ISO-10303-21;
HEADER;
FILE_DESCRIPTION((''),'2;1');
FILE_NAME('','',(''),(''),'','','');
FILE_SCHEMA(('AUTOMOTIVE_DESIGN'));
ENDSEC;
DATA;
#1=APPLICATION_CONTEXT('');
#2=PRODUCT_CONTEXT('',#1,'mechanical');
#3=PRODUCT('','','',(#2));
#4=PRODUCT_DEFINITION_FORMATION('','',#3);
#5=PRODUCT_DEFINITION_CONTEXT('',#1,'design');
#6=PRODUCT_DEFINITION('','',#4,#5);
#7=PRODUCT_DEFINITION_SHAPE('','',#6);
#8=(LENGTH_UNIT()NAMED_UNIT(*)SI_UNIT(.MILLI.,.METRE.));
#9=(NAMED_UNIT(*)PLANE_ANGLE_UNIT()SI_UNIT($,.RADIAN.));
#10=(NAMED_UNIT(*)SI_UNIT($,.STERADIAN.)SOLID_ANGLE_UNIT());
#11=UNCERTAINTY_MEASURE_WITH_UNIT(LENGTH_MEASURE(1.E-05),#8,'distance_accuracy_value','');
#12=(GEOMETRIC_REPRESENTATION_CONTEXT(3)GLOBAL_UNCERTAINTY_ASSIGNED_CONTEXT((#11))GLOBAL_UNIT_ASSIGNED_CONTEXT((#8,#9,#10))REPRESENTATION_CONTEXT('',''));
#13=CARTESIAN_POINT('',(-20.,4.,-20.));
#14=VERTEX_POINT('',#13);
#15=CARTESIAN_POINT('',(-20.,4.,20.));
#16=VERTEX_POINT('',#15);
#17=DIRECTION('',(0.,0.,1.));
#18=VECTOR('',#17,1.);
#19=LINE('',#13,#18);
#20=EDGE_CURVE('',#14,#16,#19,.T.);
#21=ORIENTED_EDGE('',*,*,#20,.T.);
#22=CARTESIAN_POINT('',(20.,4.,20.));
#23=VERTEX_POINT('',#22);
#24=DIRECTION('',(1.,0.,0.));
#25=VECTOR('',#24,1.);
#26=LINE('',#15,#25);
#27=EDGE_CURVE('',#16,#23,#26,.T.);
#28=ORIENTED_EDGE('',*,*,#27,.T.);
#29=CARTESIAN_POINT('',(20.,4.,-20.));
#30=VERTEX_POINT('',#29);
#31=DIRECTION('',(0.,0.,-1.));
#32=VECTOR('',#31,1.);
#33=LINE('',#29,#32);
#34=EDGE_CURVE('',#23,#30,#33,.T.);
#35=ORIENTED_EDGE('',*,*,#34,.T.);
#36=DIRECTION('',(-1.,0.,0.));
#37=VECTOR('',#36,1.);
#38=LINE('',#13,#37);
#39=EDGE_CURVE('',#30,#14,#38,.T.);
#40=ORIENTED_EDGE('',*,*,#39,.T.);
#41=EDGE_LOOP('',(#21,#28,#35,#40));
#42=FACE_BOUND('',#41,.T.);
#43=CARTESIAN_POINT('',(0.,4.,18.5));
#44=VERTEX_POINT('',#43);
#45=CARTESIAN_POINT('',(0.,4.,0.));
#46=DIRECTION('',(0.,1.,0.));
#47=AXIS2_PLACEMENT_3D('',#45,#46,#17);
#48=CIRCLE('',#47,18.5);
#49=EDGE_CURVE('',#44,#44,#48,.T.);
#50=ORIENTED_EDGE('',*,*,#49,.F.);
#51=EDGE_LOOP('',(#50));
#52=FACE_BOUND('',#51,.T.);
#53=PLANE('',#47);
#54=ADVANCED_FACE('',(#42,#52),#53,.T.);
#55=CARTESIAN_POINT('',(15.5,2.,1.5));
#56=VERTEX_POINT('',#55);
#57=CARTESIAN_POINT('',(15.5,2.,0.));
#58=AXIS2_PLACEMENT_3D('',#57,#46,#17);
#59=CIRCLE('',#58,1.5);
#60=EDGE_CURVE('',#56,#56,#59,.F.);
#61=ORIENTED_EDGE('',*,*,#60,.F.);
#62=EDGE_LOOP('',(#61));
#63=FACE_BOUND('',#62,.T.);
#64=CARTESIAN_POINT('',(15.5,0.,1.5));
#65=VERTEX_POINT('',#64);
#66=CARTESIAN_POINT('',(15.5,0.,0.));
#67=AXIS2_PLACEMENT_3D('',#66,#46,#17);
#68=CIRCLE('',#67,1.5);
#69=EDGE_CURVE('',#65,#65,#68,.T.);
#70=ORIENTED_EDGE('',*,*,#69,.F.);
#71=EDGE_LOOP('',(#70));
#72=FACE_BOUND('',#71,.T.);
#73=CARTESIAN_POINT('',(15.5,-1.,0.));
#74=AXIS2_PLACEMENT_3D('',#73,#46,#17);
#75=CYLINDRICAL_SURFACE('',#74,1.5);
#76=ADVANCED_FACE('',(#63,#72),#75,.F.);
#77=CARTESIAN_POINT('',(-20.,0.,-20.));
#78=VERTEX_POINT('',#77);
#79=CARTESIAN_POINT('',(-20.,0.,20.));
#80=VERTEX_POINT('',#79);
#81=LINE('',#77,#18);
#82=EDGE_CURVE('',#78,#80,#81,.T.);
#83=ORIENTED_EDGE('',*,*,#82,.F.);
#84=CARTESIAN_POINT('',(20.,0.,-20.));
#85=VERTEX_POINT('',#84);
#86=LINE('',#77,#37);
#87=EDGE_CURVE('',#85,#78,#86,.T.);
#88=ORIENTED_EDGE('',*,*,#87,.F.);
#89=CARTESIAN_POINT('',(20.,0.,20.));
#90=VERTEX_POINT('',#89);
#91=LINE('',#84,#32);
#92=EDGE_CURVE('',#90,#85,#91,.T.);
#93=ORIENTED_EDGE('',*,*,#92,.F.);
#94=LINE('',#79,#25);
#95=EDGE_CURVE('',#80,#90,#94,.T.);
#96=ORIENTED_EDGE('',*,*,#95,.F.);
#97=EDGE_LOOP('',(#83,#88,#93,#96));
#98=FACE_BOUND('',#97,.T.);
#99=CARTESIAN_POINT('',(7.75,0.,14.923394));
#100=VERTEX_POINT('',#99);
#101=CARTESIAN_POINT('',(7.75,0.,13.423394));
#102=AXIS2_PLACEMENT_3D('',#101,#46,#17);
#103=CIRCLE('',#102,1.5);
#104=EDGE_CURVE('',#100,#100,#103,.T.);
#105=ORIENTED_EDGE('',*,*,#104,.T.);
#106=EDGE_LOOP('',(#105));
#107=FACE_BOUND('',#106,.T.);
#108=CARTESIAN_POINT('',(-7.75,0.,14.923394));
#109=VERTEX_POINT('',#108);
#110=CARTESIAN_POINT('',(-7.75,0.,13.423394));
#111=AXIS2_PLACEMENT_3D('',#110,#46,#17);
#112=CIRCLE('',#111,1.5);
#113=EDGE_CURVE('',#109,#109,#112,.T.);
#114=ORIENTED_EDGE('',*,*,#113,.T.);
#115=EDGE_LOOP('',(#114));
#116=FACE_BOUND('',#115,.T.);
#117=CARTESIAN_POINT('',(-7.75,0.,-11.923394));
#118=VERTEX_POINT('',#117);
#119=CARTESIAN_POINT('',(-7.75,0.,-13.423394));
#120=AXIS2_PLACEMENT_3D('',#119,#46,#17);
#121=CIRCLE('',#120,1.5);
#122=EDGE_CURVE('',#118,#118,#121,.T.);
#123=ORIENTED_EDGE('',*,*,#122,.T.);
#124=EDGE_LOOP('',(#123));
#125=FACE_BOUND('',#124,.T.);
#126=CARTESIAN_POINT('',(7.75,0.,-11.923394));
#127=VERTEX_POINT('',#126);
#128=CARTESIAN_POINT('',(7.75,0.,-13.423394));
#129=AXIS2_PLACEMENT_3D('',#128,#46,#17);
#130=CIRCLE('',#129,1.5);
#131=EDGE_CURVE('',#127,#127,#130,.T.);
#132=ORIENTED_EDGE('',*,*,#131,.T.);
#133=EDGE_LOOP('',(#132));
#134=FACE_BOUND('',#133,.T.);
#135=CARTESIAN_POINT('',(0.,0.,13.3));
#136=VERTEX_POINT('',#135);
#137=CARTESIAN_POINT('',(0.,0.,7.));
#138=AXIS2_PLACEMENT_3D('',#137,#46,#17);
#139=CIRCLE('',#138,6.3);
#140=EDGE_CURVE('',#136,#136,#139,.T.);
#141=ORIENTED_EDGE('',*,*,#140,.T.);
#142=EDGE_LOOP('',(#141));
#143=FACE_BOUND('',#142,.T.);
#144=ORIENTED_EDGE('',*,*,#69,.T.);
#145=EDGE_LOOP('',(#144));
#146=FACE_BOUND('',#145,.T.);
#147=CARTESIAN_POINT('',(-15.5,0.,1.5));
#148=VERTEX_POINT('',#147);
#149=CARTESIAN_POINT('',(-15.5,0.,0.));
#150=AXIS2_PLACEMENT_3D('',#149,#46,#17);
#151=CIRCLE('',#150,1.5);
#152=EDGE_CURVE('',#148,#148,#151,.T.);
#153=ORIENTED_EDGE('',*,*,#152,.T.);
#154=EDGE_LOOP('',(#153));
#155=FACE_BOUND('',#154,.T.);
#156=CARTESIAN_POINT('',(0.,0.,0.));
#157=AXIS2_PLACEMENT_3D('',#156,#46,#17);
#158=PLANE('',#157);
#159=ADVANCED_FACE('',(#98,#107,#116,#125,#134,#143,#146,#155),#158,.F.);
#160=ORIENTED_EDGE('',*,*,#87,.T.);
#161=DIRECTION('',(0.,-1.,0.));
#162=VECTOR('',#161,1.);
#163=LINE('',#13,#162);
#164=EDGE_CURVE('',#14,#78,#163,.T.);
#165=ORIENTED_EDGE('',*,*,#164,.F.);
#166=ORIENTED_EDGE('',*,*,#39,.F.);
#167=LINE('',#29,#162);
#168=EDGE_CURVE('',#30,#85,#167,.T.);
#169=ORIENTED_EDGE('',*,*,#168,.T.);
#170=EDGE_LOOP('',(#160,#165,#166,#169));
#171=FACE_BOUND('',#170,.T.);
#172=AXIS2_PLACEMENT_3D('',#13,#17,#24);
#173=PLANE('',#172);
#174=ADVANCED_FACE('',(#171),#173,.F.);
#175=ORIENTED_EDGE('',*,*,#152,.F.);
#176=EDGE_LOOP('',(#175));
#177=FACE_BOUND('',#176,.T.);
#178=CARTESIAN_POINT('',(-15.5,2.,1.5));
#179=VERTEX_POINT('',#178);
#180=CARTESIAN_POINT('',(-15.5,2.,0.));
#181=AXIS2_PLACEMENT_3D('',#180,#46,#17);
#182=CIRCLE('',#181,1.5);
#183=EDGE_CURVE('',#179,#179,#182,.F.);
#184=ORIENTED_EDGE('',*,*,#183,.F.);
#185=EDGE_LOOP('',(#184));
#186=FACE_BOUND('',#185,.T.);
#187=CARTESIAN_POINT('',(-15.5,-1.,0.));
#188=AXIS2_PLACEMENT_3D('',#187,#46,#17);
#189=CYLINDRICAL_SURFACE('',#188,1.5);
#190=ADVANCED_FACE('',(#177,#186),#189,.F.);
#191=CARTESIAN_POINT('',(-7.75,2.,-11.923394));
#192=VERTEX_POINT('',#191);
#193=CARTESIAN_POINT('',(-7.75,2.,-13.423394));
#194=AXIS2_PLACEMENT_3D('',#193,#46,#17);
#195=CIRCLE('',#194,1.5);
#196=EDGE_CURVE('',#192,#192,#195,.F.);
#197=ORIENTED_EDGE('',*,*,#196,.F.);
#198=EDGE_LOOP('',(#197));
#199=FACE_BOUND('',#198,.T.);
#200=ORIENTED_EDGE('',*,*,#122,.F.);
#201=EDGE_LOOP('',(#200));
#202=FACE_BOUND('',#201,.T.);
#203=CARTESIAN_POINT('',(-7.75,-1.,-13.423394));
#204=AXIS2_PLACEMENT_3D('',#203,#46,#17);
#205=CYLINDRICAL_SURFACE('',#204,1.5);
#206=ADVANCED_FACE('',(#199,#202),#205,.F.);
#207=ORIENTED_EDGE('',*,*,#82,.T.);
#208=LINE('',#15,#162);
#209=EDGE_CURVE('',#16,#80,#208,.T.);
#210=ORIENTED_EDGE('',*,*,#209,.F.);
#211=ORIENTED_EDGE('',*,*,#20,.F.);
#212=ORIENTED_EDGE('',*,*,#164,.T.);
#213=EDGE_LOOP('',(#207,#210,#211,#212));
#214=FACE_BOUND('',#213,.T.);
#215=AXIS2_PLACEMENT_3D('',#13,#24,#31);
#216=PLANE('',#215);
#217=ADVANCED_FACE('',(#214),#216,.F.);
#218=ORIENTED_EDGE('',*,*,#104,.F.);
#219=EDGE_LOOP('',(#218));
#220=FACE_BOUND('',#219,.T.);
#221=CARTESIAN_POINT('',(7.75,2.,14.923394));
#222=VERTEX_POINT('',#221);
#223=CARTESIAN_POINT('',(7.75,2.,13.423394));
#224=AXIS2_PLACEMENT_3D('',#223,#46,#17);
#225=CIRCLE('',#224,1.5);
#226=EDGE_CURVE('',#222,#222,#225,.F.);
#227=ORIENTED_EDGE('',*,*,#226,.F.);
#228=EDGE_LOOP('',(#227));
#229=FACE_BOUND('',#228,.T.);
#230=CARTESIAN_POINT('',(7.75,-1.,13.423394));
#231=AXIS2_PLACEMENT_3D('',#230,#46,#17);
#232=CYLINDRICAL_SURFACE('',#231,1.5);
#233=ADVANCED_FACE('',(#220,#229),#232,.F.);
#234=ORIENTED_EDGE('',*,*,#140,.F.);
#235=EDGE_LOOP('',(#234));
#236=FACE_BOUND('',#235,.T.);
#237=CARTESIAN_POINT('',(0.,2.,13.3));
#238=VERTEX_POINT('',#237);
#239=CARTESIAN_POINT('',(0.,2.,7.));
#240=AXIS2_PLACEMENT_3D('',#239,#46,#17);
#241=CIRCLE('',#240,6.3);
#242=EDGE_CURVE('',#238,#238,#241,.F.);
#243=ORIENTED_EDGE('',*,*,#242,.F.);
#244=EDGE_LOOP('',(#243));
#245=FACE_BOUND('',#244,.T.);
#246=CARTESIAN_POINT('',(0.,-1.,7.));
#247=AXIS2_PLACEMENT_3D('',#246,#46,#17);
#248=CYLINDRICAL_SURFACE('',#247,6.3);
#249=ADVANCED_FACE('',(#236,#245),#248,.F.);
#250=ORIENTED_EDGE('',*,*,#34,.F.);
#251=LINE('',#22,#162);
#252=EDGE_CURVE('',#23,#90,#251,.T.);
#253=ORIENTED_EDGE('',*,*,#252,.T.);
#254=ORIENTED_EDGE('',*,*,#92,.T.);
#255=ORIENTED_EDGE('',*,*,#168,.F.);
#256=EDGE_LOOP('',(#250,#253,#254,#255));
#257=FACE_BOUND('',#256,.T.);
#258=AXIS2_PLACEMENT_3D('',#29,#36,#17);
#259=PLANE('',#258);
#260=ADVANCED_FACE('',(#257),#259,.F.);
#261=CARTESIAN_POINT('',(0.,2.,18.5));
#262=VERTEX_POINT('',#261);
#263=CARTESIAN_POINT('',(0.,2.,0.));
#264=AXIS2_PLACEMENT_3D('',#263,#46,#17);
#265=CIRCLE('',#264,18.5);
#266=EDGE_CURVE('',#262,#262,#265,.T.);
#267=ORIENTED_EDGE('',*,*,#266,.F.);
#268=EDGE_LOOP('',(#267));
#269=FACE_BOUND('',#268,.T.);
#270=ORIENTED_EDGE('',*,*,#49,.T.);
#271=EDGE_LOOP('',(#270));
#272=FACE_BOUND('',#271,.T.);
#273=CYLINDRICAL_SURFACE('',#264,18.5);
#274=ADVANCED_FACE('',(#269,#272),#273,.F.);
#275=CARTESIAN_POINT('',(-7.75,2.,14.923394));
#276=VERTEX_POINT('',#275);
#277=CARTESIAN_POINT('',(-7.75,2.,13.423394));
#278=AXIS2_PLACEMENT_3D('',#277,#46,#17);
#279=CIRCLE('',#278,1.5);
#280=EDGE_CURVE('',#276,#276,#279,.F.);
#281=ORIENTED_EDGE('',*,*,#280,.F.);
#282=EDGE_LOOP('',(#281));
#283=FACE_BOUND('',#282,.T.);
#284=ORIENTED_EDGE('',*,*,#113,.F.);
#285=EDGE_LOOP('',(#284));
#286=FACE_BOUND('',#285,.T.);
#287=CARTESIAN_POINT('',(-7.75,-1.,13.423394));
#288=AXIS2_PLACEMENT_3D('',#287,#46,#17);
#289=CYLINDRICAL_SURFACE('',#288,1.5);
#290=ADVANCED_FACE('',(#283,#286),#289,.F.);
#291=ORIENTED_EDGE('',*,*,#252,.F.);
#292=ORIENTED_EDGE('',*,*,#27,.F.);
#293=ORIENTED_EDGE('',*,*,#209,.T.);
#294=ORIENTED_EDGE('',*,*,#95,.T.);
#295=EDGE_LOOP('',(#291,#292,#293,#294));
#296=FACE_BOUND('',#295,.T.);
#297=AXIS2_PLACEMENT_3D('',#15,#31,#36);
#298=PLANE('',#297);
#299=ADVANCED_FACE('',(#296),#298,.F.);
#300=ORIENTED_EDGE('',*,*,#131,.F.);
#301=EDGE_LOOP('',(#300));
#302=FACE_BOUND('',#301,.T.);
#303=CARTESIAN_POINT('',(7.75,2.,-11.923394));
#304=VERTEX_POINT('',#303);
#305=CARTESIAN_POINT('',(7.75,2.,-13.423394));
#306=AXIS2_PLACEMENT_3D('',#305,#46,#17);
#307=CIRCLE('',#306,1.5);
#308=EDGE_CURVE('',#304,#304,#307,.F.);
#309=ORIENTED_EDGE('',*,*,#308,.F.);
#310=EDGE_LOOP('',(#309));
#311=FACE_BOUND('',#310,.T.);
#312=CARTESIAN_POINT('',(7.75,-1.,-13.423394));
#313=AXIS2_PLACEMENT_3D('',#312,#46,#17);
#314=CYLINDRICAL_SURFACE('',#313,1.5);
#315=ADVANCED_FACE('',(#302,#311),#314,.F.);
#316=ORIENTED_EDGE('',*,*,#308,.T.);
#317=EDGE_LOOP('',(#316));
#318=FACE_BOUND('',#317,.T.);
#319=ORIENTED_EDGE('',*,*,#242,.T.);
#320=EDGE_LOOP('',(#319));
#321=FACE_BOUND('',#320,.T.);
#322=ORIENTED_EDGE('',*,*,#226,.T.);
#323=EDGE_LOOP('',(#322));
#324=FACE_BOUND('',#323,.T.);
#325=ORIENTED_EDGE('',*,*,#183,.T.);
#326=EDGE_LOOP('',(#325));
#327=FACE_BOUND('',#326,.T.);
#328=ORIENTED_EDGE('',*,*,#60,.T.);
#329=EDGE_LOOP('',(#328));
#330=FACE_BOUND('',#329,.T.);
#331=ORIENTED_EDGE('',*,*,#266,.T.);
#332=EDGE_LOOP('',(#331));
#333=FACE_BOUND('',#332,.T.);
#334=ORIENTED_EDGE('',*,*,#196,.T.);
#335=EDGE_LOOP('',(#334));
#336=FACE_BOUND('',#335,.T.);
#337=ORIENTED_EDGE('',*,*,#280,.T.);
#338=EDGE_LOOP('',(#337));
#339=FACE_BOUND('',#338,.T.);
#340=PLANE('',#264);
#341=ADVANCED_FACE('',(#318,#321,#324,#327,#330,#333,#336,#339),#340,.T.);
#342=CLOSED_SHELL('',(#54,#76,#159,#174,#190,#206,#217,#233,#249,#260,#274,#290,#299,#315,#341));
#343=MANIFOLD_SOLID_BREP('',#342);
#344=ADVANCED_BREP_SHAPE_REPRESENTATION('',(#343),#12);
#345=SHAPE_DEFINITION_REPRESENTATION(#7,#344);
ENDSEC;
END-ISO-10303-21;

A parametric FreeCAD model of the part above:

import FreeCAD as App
import Part
import Sketcher


def add_polygon(sketch, points):
    """Adds a closed chain of lines whose ends are joined by coincident constraints."""
    first, n = sketch.GeometryCount, len(points)
    for a, b in zip(points, points[1:] + points[:1]):
        sketch.addGeometry(Part.LineSegment(App.Vector(*a, 0), App.Vector(*b, 0)), False)
    for i in range(n):
        sketch.addConstraint(Sketcher.Constraint("Coincident", first + i, 2, first + (i + 1) % n, 1))

doc = App.newDocument("Part")
body = doc.addObject("PartDesign::Body", "Body")

# Sketch on XZ plane
sketch1 = doc.addObject("Sketcher::SketchObject", "Sketch")
body.addObject(sketch1)
sketch1.AttachmentSupport = (doc.XZ_Plane, [""])
sketch1.MapMode = "FlatFace"
add_polygon(sketch1, [(-20, -20), (-20, 20), (20, 20), (20, -20)])  # lines 0-3
sketch1.addConstraint([
    Sketcher.Constraint("Vertical", 0),
    Sketcher.Constraint("Horizontal", 1),
    Sketcher.Constraint("Vertical", 2),
    Sketcher.Constraint("Horizontal", 3),
    Sketcher.Constraint("Symmetric", 0, 2, 2, 2, -1, 1),
    Sketcher.Constraint("Equal", 3, 0),
    Sketcher.Constraint("DistanceX", 1, 1, 1, 2, 40.0),
])
pad1 = doc.addObject("PartDesign::Pad", "Pad")
body.addObject(pad1)
pad1.Profile = sketch1
pad1.Length = 4
pad1.Reversed = True

# Sketch on XZ plane
sketch2 = doc.addObject("Sketcher::SketchObject", "Sketch001")
body.addObject(sketch2)
sketch2.AttachmentSupport = (doc.XZ_Plane, [""])
sketch2.MapMode = "FlatFace"
sketch2.AttachmentOffset = App.Placement(App.Vector(0, 0, -4), App.Rotation())
sketch2.addGeometry([
    Part.Circle(App.Vector(0, 7, 0), App.Vector(0, 0, 1), 6.3),  # 0
    Part.Circle(App.Vector(15.5, 0, 0), App.Vector(0, 0, 1), 1.5),  # 1
    Part.Circle(App.Vector(7.75, 13.423394, 0), App.Vector(0, 0, 1), 1.5),  # 2
    Part.Circle(App.Vector(-7.75, 13.423394, 0), App.Vector(0, 0, 1), 1.5),  # 3
    Part.Circle(App.Vector(-15.5, 0, 0), App.Vector(0, 0, 1), 1.5),  # 4
    Part.Circle(App.Vector(-7.75, -13.423394, 0), App.Vector(0, 0, 1), 1.5),  # 5
    Part.Circle(App.Vector(7.75, -13.423394, 0), App.Vector(0, 0, 1), 1.5),  # 6
], False)
sketch2.addConstraint([
    Sketcher.Constraint("Equal", 1, 2),
    Sketcher.Constraint("Equal", 2, 3),
    Sketcher.Constraint("Equal", 3, 4),
    Sketcher.Constraint("Equal", 4, 5),
    Sketcher.Constraint("Equal", 5, 6),
    Sketcher.Constraint("Symmetric", 1, 3, 4, 3, -1, 1),
    Sketcher.Constraint("Symmetric", 2, 3, 5, 3, -1, 1),
    Sketcher.Constraint("Symmetric", 3, 3, 6, 3, -1, 1),
    Sketcher.Constraint("Symmetric", 2, 3, 3, 3, -2),
    Sketcher.Constraint("PointOnObject", 0, 3, -2),
    Sketcher.Constraint("PointOnObject", 1, 3, -1),
    Sketcher.Constraint("Diameter", 1, 3.0),
    Sketcher.Constraint("Diameter", 0, 12.6),
    Sketcher.Constraint("DistanceY", -1, 1, 0, 3, 7.0),
    Sketcher.Constraint("DistanceX", 4, 3, 1, 3, 31.0),
    Sketcher.Constraint("DistanceX", 3, 3, 2, 3, 15.5),
    Sketcher.Constraint("DistanceY", -1, 1, 2, 3, 13.423394),
])
pocket1 = doc.addObject("PartDesign::Pocket", "Pocket")
body.addObject(pocket1)
pocket1.Profile = sketch2
pocket1.Length = 5
pocket1.Reversed = True

# Sketch on XZ plane
sketch3 = doc.addObject("Sketcher::SketchObject", "Sketch002")
body.addObject(sketch3)
sketch3.AttachmentSupport = (doc.XZ_Plane, [""])
sketch3.MapMode = "FlatFace"
sketch3.AttachmentOffset = App.Placement(App.Vector(0, 0, -4), App.Rotation())
sketch3.addGeometry(Part.Circle(App.Vector(0, 0, 0), App.Vector(0, 0, 1), 18.5), False)
sketch3.addConstraint([
    Sketcher.Constraint("Coincident", 0, 3, -1, 1),
    Sketcher.Constraint("Diameter", 0, 37.0),
])
pocket2 = doc.addObject("PartDesign::Pocket", "Pocket001")
body.addObject(pocket2)
pocket2.Profile = sketch3
pocket2.Length = 2
pocket2.Reversed = True

doc.recompute()
